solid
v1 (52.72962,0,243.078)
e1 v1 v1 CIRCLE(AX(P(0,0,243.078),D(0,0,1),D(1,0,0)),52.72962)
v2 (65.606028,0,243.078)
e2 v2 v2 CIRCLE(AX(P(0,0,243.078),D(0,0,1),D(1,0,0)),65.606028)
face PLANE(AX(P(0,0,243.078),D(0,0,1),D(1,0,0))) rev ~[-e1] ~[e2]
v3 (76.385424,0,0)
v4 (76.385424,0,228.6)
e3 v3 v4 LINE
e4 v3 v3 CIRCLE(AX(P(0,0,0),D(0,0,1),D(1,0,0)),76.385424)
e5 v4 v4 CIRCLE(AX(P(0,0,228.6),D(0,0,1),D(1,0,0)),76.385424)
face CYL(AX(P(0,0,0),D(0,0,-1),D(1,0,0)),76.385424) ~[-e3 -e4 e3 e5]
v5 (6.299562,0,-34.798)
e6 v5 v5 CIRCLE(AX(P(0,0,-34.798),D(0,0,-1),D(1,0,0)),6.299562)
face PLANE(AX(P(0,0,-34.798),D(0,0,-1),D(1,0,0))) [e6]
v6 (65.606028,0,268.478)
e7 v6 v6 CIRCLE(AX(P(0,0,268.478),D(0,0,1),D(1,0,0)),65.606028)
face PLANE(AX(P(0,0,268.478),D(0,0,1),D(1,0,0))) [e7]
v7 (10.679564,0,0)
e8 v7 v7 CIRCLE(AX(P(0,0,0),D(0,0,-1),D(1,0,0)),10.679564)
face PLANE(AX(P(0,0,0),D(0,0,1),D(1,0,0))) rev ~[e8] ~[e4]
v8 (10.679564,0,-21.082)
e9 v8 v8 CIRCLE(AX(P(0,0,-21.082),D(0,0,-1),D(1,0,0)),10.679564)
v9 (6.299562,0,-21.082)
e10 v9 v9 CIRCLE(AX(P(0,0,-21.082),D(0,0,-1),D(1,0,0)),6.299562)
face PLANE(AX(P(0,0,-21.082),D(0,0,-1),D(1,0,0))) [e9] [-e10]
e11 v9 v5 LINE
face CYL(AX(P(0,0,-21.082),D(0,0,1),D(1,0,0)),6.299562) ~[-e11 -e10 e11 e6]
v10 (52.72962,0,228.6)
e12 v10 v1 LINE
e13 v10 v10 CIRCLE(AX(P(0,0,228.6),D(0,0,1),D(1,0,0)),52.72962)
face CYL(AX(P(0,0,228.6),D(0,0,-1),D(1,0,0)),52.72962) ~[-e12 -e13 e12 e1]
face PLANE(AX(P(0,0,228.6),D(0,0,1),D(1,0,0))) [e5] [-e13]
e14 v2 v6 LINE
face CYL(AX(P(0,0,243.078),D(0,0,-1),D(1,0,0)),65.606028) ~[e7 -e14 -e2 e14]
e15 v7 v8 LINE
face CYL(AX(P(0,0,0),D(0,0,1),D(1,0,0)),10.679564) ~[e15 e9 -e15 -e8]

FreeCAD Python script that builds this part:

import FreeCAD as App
import Part
import Sketcher

V = App.Vector
Q = App.Units.Quantity

doc = App.newDocument("Part")
body = doc.addObject("PartDesign::Body", "Body")

sketch1 = body.newObject("Sketcher::SketchObject", "Sketch")
sketch1.AttachmentSupport = (doc.getObject("XY_Plane"), [""])
sketch1.MapMode = "FlatFace"
sketch1.addGeometry(Part.Circle(V(0, 0, 0), V(0, 0, 1), 76), False)
sketch1.addConstraint([
    Sketcher.Constraint("Coincident", 0, 3, -1, 1),
    Sketcher.Constraint("Diameter", 0, Q("152.770848 mm")),
])
pad1 = body.newObject("PartDesign::Pad", "Pad")
pad1.Profile = sketch1
pad1.Length = Q("9 in")

sketch2 = body.newObject("Sketcher::SketchObject", "Sketch001")
sketch2.AttachmentSupport = (doc.getObject("XY_Plane"), [""])
sketch2.MapMode = "FlatFace"
sketch2.AttachmentOffset = App.Placement(V(0, 0, 9 * 25.4), App.Rotation())
sketch2.addGeometry(Part.Circle(V(0, 0, 0), V(0, 0, 1), 53), False)
sketch2.addConstraint([
    Sketcher.Constraint("Coincident", 0, 3, -1, 1),
    Sketcher.Constraint("Diameter", 0, Q("105.45924 mm")),
])
pad2 = body.newObject("PartDesign::Pad", "Pad001")
pad2.Profile = sketch2
pad2.Length = Q("0.57 in")

sketch3 = body.newObject("Sketcher::SketchObject", "Sketch002")
sketch3.AttachmentSupport = (doc.getObject("XY_Plane"), [""])
sketch3.MapMode = "FlatFace"
sketch3.AttachmentOffset = App.Placement(V(0, 0, 9.57 * 25.4), App.Rotation())
sketch3.addGeometry(Part.Circle(V(0, 0, 0), V(0, 0, 1), 66), False)
sketch3.addConstraint([
    Sketcher.Constraint("Coincident", 0, 3, -1, 1),
    Sketcher.Constraint("Diameter", 0, Q("131.212056 mm")),
])
pad3 = body.newObject("PartDesign::Pad", "Pad002")
pad3.Profile = sketch3
pad3.Length = Q("1 in")

sketch4 = body.newObject("Sketcher::SketchObject", "Sketch003")
sketch4.AttachmentSupport = (doc.getObject("XY_Plane"), [""])
sketch4.MapMode = "FlatFace"
sketch4.addGeometry(Part.Circle(V(0, 0, 0), V(0, 0, 1), 11), False)
sketch4.addConstraint([
    Sketcher.Constraint("Coincident", 0, 3, -1, 1),
    Sketcher.Constraint("Diameter", 0, Q("21.359128 mm")),
])
pad4 = body.newObject("PartDesign::Pad", "Pad003")
pad4.Profile = sketch4
pad4.Length = Q("0.83 in")
pad4.Reversed = True

sketch5 = body.newObject("Sketcher::SketchObject", "Sketch004")
sketch5.AttachmentSupport = (doc.getObject("XY_Plane"), [""])
sketch5.MapMode = "FlatFace"
sketch5.AttachmentOffset = App.Placement(V(0, 0, -0.83 * 25.4), App.Rotation())
sketch5.addGeometry(Part.Circle(V(0, 0, 0), V(0, 0, 1), 6), False)
sketch5.addConstraint([
    Sketcher.Constraint("Coincident", 0, 3, -1, 1),
    Sketcher.Constraint("Diameter", 0, Q("12.599124 mm")),
])
pad5 = body.newObject("PartDesign::Pad", "Pad004")
pad5.Profile = sketch5
pad5.Length = Q("0.54 in")
pad5.Reversed = True

doc.recompute()
